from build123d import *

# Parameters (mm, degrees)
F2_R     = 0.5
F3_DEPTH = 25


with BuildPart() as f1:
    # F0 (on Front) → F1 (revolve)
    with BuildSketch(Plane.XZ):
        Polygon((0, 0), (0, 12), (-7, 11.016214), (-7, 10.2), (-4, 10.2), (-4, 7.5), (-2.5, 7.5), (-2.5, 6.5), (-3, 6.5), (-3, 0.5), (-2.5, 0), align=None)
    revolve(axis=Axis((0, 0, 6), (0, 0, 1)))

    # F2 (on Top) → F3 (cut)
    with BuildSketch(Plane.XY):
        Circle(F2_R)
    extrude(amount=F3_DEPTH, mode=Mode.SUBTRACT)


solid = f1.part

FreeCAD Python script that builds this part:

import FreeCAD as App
import Part
import Sketcher
Q = App.Units.Quantity


def add_polygon(sketch, points):
    """Adds a closed chain of lines whose ends are joined by coincident constraints."""
    first, n = sketch.GeometryCount, len(points)
    for a, b in zip(points, points[1:] + points[:1]):
        sketch.addGeometry(Part.LineSegment(App.Vector(*a, 0), App.Vector(*b, 0)), False)
    for i in range(n):
        sketch.addConstraint(Sketcher.Constraint("Coincident", first + i, 2, first + (i + 1) % n, 1))

doc = App.newDocument("Part")
body = doc.addObject("PartDesign::Body", "Body")

# Sketch on XZ plane
sketch1 = doc.addObject("Sketcher::SketchObject", "Sketch")
body.addObject(sketch1)
sketch1.AttachmentSupport = (doc.XZ_Plane, [""])
sketch1.MapMode = "FlatFace"
add_polygon(sketch1, [(0, 0), (0, 12), (-7, 11), (-7, 10.2), (-4, 10.2), (-4, 7.5), (-2.5, 7.5), (-2.5, 6.5), (-3, 6.5), (-3, 0.5), (-2.5, 0)])  # lines 0-10
sketch1.addConstraint([
    Sketcher.Constraint("Vertical", 0),
    Sketcher.Constraint("Vertical", 2),
    Sketcher.Constraint("Horizontal", 3),
    Sketcher.Constraint("Vertical", 4),
    Sketcher.Constraint("Horizontal", 5),
    Sketcher.Constraint("Vertical", 6),
    Sketcher.Constraint("Horizontal", 7),
    Sketcher.Constraint("Vertical", 8),
    Sketcher.Constraint("Horizontal", 10),
    Sketcher.Constraint("Coincident", 10, 2, -1, 1),
    Sketcher.Constraint("Vertical", 6, 2, 9, 2),
    Sketcher.Constraint("DistanceX", 3, 1, 3, 2, Q("3 mm")),
    Sketcher.Constraint("DistanceY", 0, 1, 0, 2, Q("12 mm")),
    Sketcher.Constraint("DistanceY", 6, 2, 6, 1, Q("1 mm")),
    Sketcher.Constraint("DistanceY", 8, 2, 8, 1, Q("6 mm")),
    Sketcher.Constraint("Angle", 1, Q("-171.999999 deg")),
    Sketcher.Constraint("Angle", 9, Q("-45 deg")),
    Sketcher.Constraint("DistanceX", 5, 1, 5, 2, Q("1.5 mm")),
    Sketcher.Constraint("DistanceX", 7, 2, 7, 1, Q("0.5 mm")),
    Sketcher.Constraint("DistanceX", 10, 1, 10, 2, Q("2.5 mm")),
    Sketcher.Constraint("DistanceY", 4, 2, 4, 1, Q("2.7 mm")),
])
revolution = doc.addObject("PartDesign::Revolution", "Revolution")
body.addObject(revolution)
revolution.Profile = sketch1
revolution.ReferenceAxis = (sketch1, ["V_Axis"])
revolution.Angle = 360

# Sketch on XY plane
sketch2 = doc.addObject("Sketcher::SketchObject", "Sketch001")
body.addObject(sketch2)
sketch2.AttachmentSupport = (doc.XY_Plane, [""])
sketch2.MapMode = "FlatFace"
sketch2.addGeometry(Part.Circle(App.Vector(0, 0, 0), App.Vector(0, 0, 1), 0.5), False)
sketch2.addConstraint([
    Sketcher.Constraint("Coincident", 0, 3, -1, 1),
    Sketcher.Constraint("Diameter", 0, Q("1 mm")),
])
pocket1 = doc.addObject("PartDesign::Pocket", "Pocket")
body.addObject(pocket1)
pocket1.Profile = sketch2
pocket1.Length = 25
pocket1.Reversed = True

doc.recompute()
